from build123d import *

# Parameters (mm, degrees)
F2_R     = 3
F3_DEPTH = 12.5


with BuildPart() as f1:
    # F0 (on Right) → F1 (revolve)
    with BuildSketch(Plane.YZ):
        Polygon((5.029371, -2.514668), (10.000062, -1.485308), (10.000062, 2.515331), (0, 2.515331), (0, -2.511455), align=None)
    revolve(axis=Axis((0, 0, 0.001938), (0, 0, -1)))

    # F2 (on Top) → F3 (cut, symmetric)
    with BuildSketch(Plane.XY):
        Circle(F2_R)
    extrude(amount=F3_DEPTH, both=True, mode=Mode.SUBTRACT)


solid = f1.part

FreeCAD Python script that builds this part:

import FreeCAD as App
import Part
import Sketcher
Q = App.Units.Quantity

doc = App.newDocument("Part")
body = doc.addObject("PartDesign::Body", "Body")

# Sketch on YZ plane
sketch1 = body.newObject("Sketcher::SketchObject", "Sketch")
sketch1.AttachmentSupport = (doc.getObject("YZ_Plane"), [""])
sketch1.MapMode = "FlatFace"
sketch1.addGeometry(Part.LineSegment(App.Vector(5, -2.5, 0), App.Vector(10, -1.5, 0)), False)
sketch1.addGeometry(Part.LineSegment(App.Vector(10, -1.5, 0), App.Vector(10, 2.5, 0)), False)
sketch1.addGeometry(Part.LineSegment(App.Vector(10, 2.5, 0), App.Vector(0, 2.5, 0)), False)
sketch1.addGeometry(Part.LineSegment(App.Vector(0, 2.5, 0), App.Vector(0, -2.5, 0)), False)
sketch1.addGeometry(Part.LineSegment(App.Vector(0, -2.5, 0), App.Vector(5, -2.5, 0)), False)
sketch1.addConstraint(Sketcher.Constraint("Coincident", 0, 2, 1, 1))
sketch1.addConstraint(Sketcher.Constraint("Coincident", 1, 2, 2, 1))
sketch1.addConstraint(Sketcher.Constraint("Coincident", 2, 2, 3, 1))
sketch1.addConstraint(Sketcher.Constraint("Coincident", 3, 2, 4, 1))
sketch1.addConstraint(Sketcher.Constraint("Coincident", 4, 2, 0, 1))
sketch1.addConstraint(Sketcher.Constraint("Vertical", 1))
sketch1.addConstraint(Sketcher.Constraint("Horizontal", 2))
sketch1.addConstraint(Sketcher.Constraint("Vertical", 3))
sketch1.addConstraint(Sketcher.Constraint("PointOnObject", 2, 2, -2))
sketch1.addConstraint(Sketcher.Constraint("DistanceY", 4, 2, 1, 2, Q("5.029999 mm")))
sketch1.addConstraint(Sketcher.Constraint("DistanceY", 1, 1, 1, 2, Q("4.000639 mm")))
sketch1.addConstraint(Sketcher.Constraint("DistanceX", 2, 2, 2, 1, Q("10.000062 mm")))
sketch1.addConstraint(Sketcher.Constraint("DistanceY", 3, 2, 3, 1, Q("5.026786 mm")))
sketch1.addConstraint(Sketcher.Constraint("DistanceY", 0, 2, -1, 1, Q("1.485308 mm")))
sketch1.addConstraint(Sketcher.Constraint("DistanceX", -1, 1, 4, 2, Q("5.029371 mm")))
revolution = body.newObject("PartDesign::Revolution", "Revolution")
revolution.Profile = sketch1
revolution.ReferenceAxis = (sketch1, ["V_Axis"])
revolution.Angle = 360

# Sketch on XY plane
sketch2 = body.newObject("Sketcher::SketchObject", "Sketch001")
sketch2.AttachmentSupport = (doc.getObject("XY_Plane"), [""])
sketch2.MapMode = "FlatFace"
sketch2.addGeometry(Part.Circle(App.Vector(0, 0, 0), App.Vector(0, 0, 1), 3), False)
sketch2.addConstraint(Sketcher.Constraint("Coincident", 0, 3, -1, 1))
sketch2.addConstraint(Sketcher.Constraint("Diameter", 0, Q("6 mm")))
pocket1 = body.newObject("PartDesign::Pocket", "Pocket")
pocket1.Profile = sketch2
pocket1.Length = 25
pocket1.Midplane = True

doc.recompute()
